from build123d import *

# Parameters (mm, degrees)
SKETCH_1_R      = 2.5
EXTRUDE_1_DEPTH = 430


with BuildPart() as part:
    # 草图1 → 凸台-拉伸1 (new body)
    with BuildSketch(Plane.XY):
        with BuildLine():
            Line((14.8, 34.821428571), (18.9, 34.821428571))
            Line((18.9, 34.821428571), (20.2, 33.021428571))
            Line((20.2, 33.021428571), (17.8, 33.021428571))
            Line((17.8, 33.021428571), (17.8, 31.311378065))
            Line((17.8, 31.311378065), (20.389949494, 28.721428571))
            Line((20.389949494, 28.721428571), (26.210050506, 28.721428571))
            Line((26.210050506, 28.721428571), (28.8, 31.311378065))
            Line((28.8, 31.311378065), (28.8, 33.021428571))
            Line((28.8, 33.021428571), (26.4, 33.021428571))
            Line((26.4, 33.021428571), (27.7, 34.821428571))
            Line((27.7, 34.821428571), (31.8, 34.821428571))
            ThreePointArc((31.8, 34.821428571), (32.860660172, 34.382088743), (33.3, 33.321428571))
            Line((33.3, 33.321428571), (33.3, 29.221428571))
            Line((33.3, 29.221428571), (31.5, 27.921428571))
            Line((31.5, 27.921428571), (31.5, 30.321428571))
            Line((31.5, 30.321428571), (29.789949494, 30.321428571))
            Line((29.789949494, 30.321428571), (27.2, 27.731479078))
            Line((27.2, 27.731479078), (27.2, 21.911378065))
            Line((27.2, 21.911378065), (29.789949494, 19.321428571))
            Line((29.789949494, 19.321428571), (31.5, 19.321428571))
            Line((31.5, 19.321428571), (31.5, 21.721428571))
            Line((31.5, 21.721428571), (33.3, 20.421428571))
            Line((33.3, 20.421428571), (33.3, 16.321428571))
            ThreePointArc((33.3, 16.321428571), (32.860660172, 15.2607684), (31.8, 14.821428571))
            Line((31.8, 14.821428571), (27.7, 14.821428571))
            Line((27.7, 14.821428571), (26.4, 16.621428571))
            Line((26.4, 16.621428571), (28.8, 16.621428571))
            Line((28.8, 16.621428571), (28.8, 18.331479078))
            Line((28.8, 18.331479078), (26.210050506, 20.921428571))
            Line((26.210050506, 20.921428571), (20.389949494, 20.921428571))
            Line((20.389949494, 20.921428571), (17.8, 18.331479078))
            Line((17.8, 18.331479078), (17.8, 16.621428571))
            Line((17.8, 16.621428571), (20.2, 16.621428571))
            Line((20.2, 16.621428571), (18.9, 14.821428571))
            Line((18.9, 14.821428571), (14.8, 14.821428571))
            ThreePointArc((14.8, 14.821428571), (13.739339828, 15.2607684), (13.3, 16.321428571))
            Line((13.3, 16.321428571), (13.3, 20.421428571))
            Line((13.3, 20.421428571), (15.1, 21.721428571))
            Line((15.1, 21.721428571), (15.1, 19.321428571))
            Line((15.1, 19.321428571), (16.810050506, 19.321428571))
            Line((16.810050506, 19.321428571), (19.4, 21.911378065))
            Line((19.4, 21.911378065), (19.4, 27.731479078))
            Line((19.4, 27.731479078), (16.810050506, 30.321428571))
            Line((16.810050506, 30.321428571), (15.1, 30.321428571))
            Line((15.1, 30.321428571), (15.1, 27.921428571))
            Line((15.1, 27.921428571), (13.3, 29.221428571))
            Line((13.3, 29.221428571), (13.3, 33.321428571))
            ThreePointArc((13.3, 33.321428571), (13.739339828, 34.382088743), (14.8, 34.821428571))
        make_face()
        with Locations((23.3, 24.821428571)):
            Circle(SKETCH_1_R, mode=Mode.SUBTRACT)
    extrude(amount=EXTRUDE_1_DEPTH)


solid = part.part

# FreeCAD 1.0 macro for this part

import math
import FreeCAD as App
import Part
import Sketcher

V = App.Vector

doc = App.newDocument("Part")
body = doc.addObject("PartDesign::Body", "Body")

sketch1 = body.newObject("Sketcher::SketchObject", "Sketch")
sketch1.AttachmentSupport = (doc.getObject("XY_Plane"), [""])
sketch1.MapMode = "FlatFace"
sketch1.addGeometry(Part.LineSegment(V(18.9, 34.821429, 0), V(14.8, 34.821429, 0)), False)
sketch1.addGeometry(Part.ArcOfCircle(Part.Circle(V(14.8, 33.321429, 0), V(0, 0, 1), 1.5), math.radians(90), math.radians(180)), False)
sketch1.addGeometry(Part.LineSegment(V(13.3, 33.321429, 0), V(13.3, 29.221429, 0)), False)
sketch1.addGeometry(Part.LineSegment(V(13.3, 29.221429, 0), V(15.1, 27.921429, 0)), False)
sketch1.addGeometry(Part.LineSegment(V(15.1, 27.921429, 0), V(15.1, 30.321429, 0)), False)
sketch1.addGeometry(Part.LineSegment(V(15.1, 30.321429, 0), V(16.810051, 30.321429, 0)), False)
sketch1.addGeometry(Part.LineSegment(V(16.810051, 30.321429, 0), V(19.4, 27.731479, 0)), False)
sketch1.addGeometry(Part.LineSegment(V(19.4, 27.731479, 0), V(19.4, 21.911378, 0)), False)
sketch1.addGeometry(Part.LineSegment(V(19.4, 21.911378, 0), V(16.810051, 19.321429, 0)), False)
sketch1.addGeometry(Part.LineSegment(V(16.810051, 19.321429, 0), V(15.1, 19.321429, 0)), False)
sketch1.addGeometry(Part.LineSegment(V(15.1, 19.321429, 0), V(15.1, 21.721429, 0)), False)
sketch1.addGeometry(Part.LineSegment(V(15.1, 21.721429, 0), V(13.3, 20.421429, 0)), False)
sketch1.addGeometry(Part.LineSegment(V(13.3, 20.421429, 0), V(13.3, 16.321429, 0)), False)
sketch1.addGeometry(Part.ArcOfCircle(Part.Circle(V(14.8, 16.321429, 0), V(0, 0, 1), 1.5), math.radians(-180), math.radians(-90)), False)
sketch1.addGeometry(Part.LineSegment(V(14.8, 14.821429, 0), V(18.9, 14.821429, 0)), False)
sketch1.addGeometry(Part.LineSegment(V(18.9, 14.821429, 0), V(20.2, 16.621429, 0)), False)
sketch1.addGeometry(Part.LineSegment(V(20.2, 16.621429, 0), V(17.8, 16.621429, 0)), False)
sketch1.addGeometry(Part.LineSegment(V(17.8, 16.621429, 0), V(17.8, 18.331479, 0)), False)
sketch1.addGeometry(Part.LineSegment(V(17.8, 18.331479, 0), V(20.389949, 20.921429, 0)), False)
sketch1.addGeometry(Part.LineSegment(V(20.389949, 20.921429, 0), V(26.210051, 20.921429, 0)), False)
sketch1.addGeometry(Part.LineSegment(V(26.210051, 20.921429, 0), V(28.8, 18.331479, 0)), False)
sketch1.addGeometry(Part.LineSegment(V(28.8, 18.331479, 0), V(28.8, 16.621429, 0)), False)
sketch1.addGeometry(Part.LineSegment(V(28.8, 16.621429, 0), V(26.4, 16.621429, 0)), False)
sketch1.addGeometry(Part.LineSegment(V(26.4, 16.621429, 0), V(27.7, 14.821429, 0)), False)
sketch1.addGeometry(Part.LineSegment(V(27.7, 14.821429, 0), V(31.8, 14.821429, 0)), False)
sketch1.addGeometry(Part.ArcOfCircle(Part.Circle(V(31.8, 16.321429, 0), V(0, 0, 1), 1.5), math.radians(-90), math.radians(0)), False)
sketch1.addGeometry(Part.LineSegment(V(33.3, 16.321429, 0), V(33.3, 20.421429, 0)), False)
sketch1.addGeometry(Part.LineSegment(V(33.3, 20.421429, 0), V(31.5, 21.721429, 0)), False)
sketch1.addGeometry(Part.LineSegment(V(31.5, 21.721429, 0), V(31.5, 19.321429, 0)), False)
sketch1.addGeometry(Part.LineSegment(V(31.5, 19.321429, 0), V(29.789949, 19.321429, 0)), False)
sketch1.addGeometry(Part.LineSegment(V(29.789949, 19.321429, 0), V(27.2, 21.911378, 0)), False)
sketch1.addGeometry(Part.LineSegment(V(27.2, 21.911378, 0), V(27.2, 27.731479, 0)), False)
sketch1.addGeometry(Part.LineSegment(V(27.2, 27.731479, 0), V(29.789949, 30.321429, 0)), False)
sketch1.addGeometry(Part.LineSegment(V(29.789949, 30.321429, 0), V(31.5, 30.321429, 0)), False)
sketch1.addGeometry(Part.LineSegment(V(31.5, 30.321429, 0), V(31.5, 27.921429, 0)), False)
sketch1.addGeometry(Part.LineSegment(V(31.5, 27.921429, 0), V(33.3, 29.221429, 0)), False)
sketch1.addGeometry(Part.LineSegment(V(33.3, 29.221429, 0), V(33.3, 33.321429, 0)), False)
sketch1.addGeometry(Part.ArcOfCircle(Part.Circle(V(31.8, 33.321429, 0), V(0, 0, 1), 1.5), math.radians(0), math.radians(90)), False)
sketch1.addGeometry(Part.LineSegment(V(31.8, 34.821429, 0), V(27.7, 34.821429, 0)), False)
sketch1.addGeometry(Part.LineSegment(V(27.7, 34.821429, 0), V(26.4, 33.021429, 0)), False)
sketch1.addGeometry(Part.LineSegment(V(26.4, 33.021429, 0), V(28.8, 33.021429, 0)), False)
sketch1.addGeometry(Part.LineSegment(V(28.8, 33.021429, 0), V(28.8, 31.311378, 0)), False)
sketch1.addGeometry(Part.LineSegment(V(28.8, 31.311378, 0), V(26.210051, 28.721429, 0)), False)
sketch1.addGeometry(Part.LineSegment(V(26.210051, 28.721429, 0), V(20.389949, 28.721429, 0)), False)
sketch1.addGeometry(Part.LineSegment(V(20.389949, 28.721429, 0), V(17.8, 31.311378, 0)), False)
sketch1.addGeometry(Part.LineSegment(V(17.8, 31.311378, 0), V(17.8, 33.021429, 0)), False)
sketch1.addGeometry(Part.LineSegment(V(17.8, 33.021429, 0), V(20.2, 33.021429, 0)), False)
sketch1.addGeometry(Part.LineSegment(V(20.2, 33.021429, 0), V(18.9, 34.821429, 0)), False)
sketch1.addGeometry(Part.Circle(V(23.3, 24.821429, 0), V(0, 0, 1), 2.5), False)
sketch1.addConstraint(Sketcher.Constraint("Tangent", 0, 2, 1, 1))
sketch1.addConstraint(Sketcher.Constraint("Tangent", 1, 2, 2, 1))
sketch1.addConstraint(Sketcher.Constraint("Coincident", 2, 2, 3, 1))
sketch1.addConstraint(Sketcher.Constraint("Coincident", 3, 2, 4, 1))
sketch1.addConstraint(Sketcher.Constraint("Coincident", 4, 2, 5, 1))
sketch1.addConstraint(Sketcher.Constraint("Coincident", 5, 2, 6, 1))
sketch1.addConstraint(Sketcher.Constraint("Coincident", 6, 2, 7, 1))
sketch1.addConstraint(Sketcher.Constraint("Coincident", 7, 2, 8, 1))
sketch1.addConstraint(Sketcher.Constraint("Coincident", 8, 2, 9, 1))
sketch1.addConstraint(Sketcher.Constraint("Coincident", 9, 2, 10, 1))
sketch1.addConstraint(Sketcher.Constraint("Coincident", 10, 2, 11, 1))
sketch1.addConstraint(Sketcher.Constraint("Coincident", 11, 2, 12, 1))
sketch1.addConstraint(Sketcher.Constraint("Tangent", 12, 2, 13, 1))
sketch1.addConstraint(Sketcher.Constraint("Tangent", 13, 2, 14, 1))
sketch1.addConstraint(Sketcher.Constraint("Coincident", 14, 2, 15, 1))
sketch1.addConstraint(Sketcher.Constraint("Coincident", 15, 2, 16, 1))
sketch1.addConstraint(Sketcher.Constraint("Coincident", 16, 2, 17, 1))
sketch1.addConstraint(Sketcher.Constraint("Coincident", 17, 2, 18, 1))
sketch1.addConstraint(Sketcher.Constraint("Coincident", 18, 2, 19, 1))
sketch1.addConstraint(Sketcher.Constraint("Coincident", 19, 2, 20, 1))
sketch1.addConstraint(Sketcher.Constraint("Coincident", 20, 2, 21, 1))
sketch1.addConstraint(Sketcher.Constraint("Coincident", 21, 2, 22, 1))
sketch1.addConstraint(Sketcher.Constraint("Coincident", 22, 2, 23, 1))
sketch1.addConstraint(Sketcher.Constraint("Coincident", 23, 2, 24, 1))
sketch1.addConstraint(Sketcher.Constraint("Tangent", 24, 2, 25, 1))
sketch1.addConstraint(Sketcher.Constraint("Tangent", 25, 2, 26, 1))
sketch1.addConstraint(Sketcher.Constraint("Coincident", 26, 2, 27, 1))
sketch1.addConstraint(Sketcher.Constraint("Coincident", 27, 2, 28, 1))
sketch1.addConstraint(Sketcher.Constraint("Coincident", 28, 2, 29, 1))
sketch1.addConstraint(Sketcher.Constraint("Coincident", 29, 2, 30, 1))
sketch1.addConstraint(Sketcher.Constraint("Coincident", 30, 2, 31, 1))
sketch1.addConstraint(Sketcher.Constraint("Coincident", 31, 2, 32, 1))
sketch1.addConstraint(Sketcher.Constraint("Coincident", 32, 2, 33, 1))
sketch1.addConstraint(Sketcher.Constraint("Coincident", 33, 2, 34, 1))
sketch1.addConstraint(Sketcher.Constraint("Coincident", 34, 2, 35, 1))
sketch1.addConstraint(Sketcher.Constraint("Coincident", 35, 2, 36, 1))
sketch1.addConstraint(Sketcher.Constraint("Tangent", 36, 2, 37, 1))
sketch1.addConstraint(Sketcher.Constraint("Tangent", 37, 2, 38, 1))
sketch1.addConstraint(Sketcher.Constraint("Coincident", 38, 2, 39, 1))
sketch1.addConstraint(Sketcher.Constraint("Coincident", 39, 2, 40, 1))
sketch1.addConstraint(Sketcher.Constraint("Coincident", 40, 2, 41, 1))
sketch1.addConstraint(Sketcher.Constraint("Coincident", 41, 2, 42, 1))
sketch1.addConstraint(Sketcher.Constraint("Coincident", 42, 2, 43, 1))
sketch1.addConstraint(Sketcher.Constraint("Coincident", 43, 2, 44, 1))
sketch1.addConstraint(Sketcher.Constraint("Coincident", 44, 2, 45, 1))
sketch1.addConstraint(Sketcher.Constraint("Coincident", 45, 2, 46, 1))
sketch1.addConstraint(Sketcher.Constraint("Coincident", 46, 2, 47, 1))
sketch1.addConstraint(Sketcher.Constraint("Coincident", 47, 2, 0, 1))
sketch1.addConstraint(Sketcher.Constraint("Horizontal", 0))
sketch1.addConstraint(Sketcher.Constraint("Vertical", 2))
sketch1.addConstraint(Sketcher.Constraint("Vertical", 4))
sketch1.addConstraint(Sketcher.Constraint("Horizontal", 5))
sketch1.addConstraint(Sketcher.Constraint("Vertical", 7))
sketch1.addConstraint(Sketcher.Constraint("Horizontal", 9))
sketch1.addConstraint(Sketcher.Constraint("Vertical", 10))
sketch1.addConstraint(Sketcher.Constraint("Vertical", 12))
sketch1.addConstraint(Sketcher.Constraint("Horizontal", 14))
sketch1.addConstraint(Sketcher.Constraint("Horizontal", 16))
sketch1.addConstraint(Sketcher.Constraint("Vertical", 17))
sketch1.addConstraint(Sketcher.Constraint("Horizontal", 19))
sketch1.addConstraint(Sketcher.Constraint("Vertical", 21))
sketch1.addConstraint(Sketcher.Constraint("Horizontal", 22))
sketch1.addConstraint(Sketcher.Constraint("Horizontal", 24))
sketch1.addConstraint(Sketcher.Constraint("Vertical", 26))
sketch1.addConstraint(Sketcher.Constraint("Vertical", 28))
sketch1.addConstraint(Sketcher.Constraint("Horizontal", 29))
sketch1.addConstraint(Sketcher.Constraint("Vertical", 31))
sketch1.addConstraint(Sketcher.Constraint("Horizontal", 33))
sketch1.addConstraint(Sketcher.Constraint("Vertical", 34))
sketch1.addConstraint(Sketcher.Constraint("Vertical", 36))
sketch1.addConstraint(Sketcher.Constraint("Horizontal", 38))
sketch1.addConstraint(Sketcher.Constraint("Horizontal", 40))
sketch1.addConstraint(Sketcher.Constraint("Vertical", 41))
sketch1.addConstraint(Sketcher.Constraint("Horizontal", 43))
sketch1.addConstraint(Sketcher.Constraint("Vertical", 45))
sketch1.addConstraint(Sketcher.Constraint("Horizontal", 46))
sketch1.addConstraint(Sketcher.Constraint("Equal", 1, 13))
sketch1.addConstraint(Sketcher.Constraint("Equal", 13, 25))
sketch1.addConstraint(Sketcher.Constraint("Equal", 25, 37))
sketch1.addConstraint(Sketcher.Constraint("Perpendicular", 6, 8))
sketch1.addConstraint(Sketcher.Constraint("Perpendicular", 3, 15))
sketch1.addConstraint(Sketcher.Constraint("Parallel", 8, 18))
sketch1.addConstraint(Sketcher.Constraint("Perpendicular", 18, 20))
sketch1.addConstraint(Sketcher.Constraint("Perpendicular", 11, 23))
sketch1.addConstraint(Sketcher.Constraint("Perpendicular", 15, 27))
sketch1.addConstraint(Sketcher.Constraint("Parallel", 20, 30))
sketch1.addConstraint(Sketcher.Constraint("Perpendicular", 30, 32))
sketch1.addConstraint(Sketcher.Constraint("Perpendicular", 23, 35))
sketch1.addConstraint(Sketcher.Constraint("Perpendicular", 27, 39))
sketch1.addConstraint(Sketcher.Constraint("Parallel", 32, 42))
sketch1.addConstraint(Sketcher.Constraint("Perpendicular", 42, 44))
sketch1.addConstraint(Sketcher.Constraint("Perpendicular", 35, 47))
sketch1.addConstraint(Sketcher.Constraint("Horizontal", 13, 3, 25, 3))
sketch1.addConstraint(Sketcher.Constraint("Horizontal", 1, 3, 37, 3))
sketch1.addConstraint(Sketcher.Constraint("Horizontal", 17, 2, 20, 2))
sketch1.addConstraint(Sketcher.Constraint("Horizontal", 16, 2, 21, 2))
sketch1.addConstraint(Sketcher.Constraint("Horizontal", 11, 2, 26, 2))
sketch1.addConstraint(Sketcher.Constraint("Horizontal", 10, 2, 27, 2))
sketch1.addConstraint(Sketcher.Constraint("Horizontal", 9, 2, 28, 2))
sketch1.addConstraint(Sketcher.Constraint("Horizontal", 7, 2, 30, 2))
sketch1.addConstraint(Sketcher.Constraint("Horizontal", 6, 2, 31, 2))
sketch1.addConstraint(Sketcher.Constraint("Horizontal", 5, 2, 32, 2))
sketch1.addConstraint(Sketcher.Constraint("Horizontal", 3, 2, 34, 2))
sketch1.addConstraint(Sketcher.Constraint("Horizontal", 2, 2, 35, 2))
sketch1.addConstraint(Sketcher.Constraint("Horizontal", 41, 2, 44, 2))
sketch1.addConstraint(Sketcher.Constraint("Horizontal", 40, 2, 45, 2))
sketch1.addConstraint(Sketcher.Constraint("Vertical", 1, 3, 13, 3))
sketch1.addConstraint(Sketcher.Constraint("Vertical", 25, 3, 37, 3))
sketch1.addConstraint(Sketcher.Constraint("Vertical", 5, 2, 8, 2))
sketch1.addConstraint(Sketcher.Constraint("Vertical", 4, 2, 9, 2))
sketch1.addConstraint(Sketcher.Constraint("Vertical", 29, 2, 32, 2))
sketch1.addConstraint(Sketcher.Constraint("Vertical", 28, 2, 33, 2))
sketch1.addConstraint(Sketcher.Constraint("Vertical", 23, 2, 38, 2))
sketch1.addConstraint(Sketcher.Constraint("Vertical", 22, 2, 39, 2))
sketch1.addConstraint(Sketcher.Constraint("Vertical", 21, 2, 40, 2))
sketch1.addConstraint(Sketcher.Constraint("Vertical", 19, 2, 42, 2))
sketch1.addConstraint(Sketcher.Constraint("Vertical", 18, 2, 43, 2))
sketch1.addConstraint(Sketcher.Constraint("Vertical", 15, 2, 46, 2))
sketch1.addConstraint(Sketcher.Constraint("Equal", 16, 22))
sketch1.addConstraint(Sketcher.Constraint("Equal", 14, 24))
sketch1.addConstraint(Sketcher.Constraint("Equal", 9, 29))
sketch1.addConstraint(Sketcher.Constraint("Equal", 38, 2))
sketch1.addConstraint(Sketcher.Constraint("Equal", 46, 4))
sketch1.addConstraint(Sketcher.Constraint("Equal", 43, 7))
sketch1.addConstraint(Sketcher.Constraint("Equal", 4, 10))
sketch1.addConstraint(Sketcher.Constraint("Equal", 2, 12))
sketch1.addConstraint(Sketcher.Constraint("Equal", 33, 17))
sketch1.addConstraint(Sketcher.Constraint("Equal", 21, 41))
sketch1.addConstraint(Sketcher.Constraint("Equal", 11, 15))
sketch1.addConstraint(Sketcher.Constraint("Equal", 8, 18))
sketch1.addConstraint(Sketcher.Constraint("Diameter", 48, 5.0))
sketch1.addConstraint(Sketcher.Constraint("Radius", 1, 1.5))
sketch1.addConstraint(Sketcher.Constraint("DistanceX", 0, 2, 0, 1, 4.1))
sketch1.addConstraint(Sketcher.Constraint("DistanceX", 16, 2, 16, 1, 2.4))
sketch1.addConstraint(Sketcher.Constraint("DistanceY", 13, 3, 1, 3, 17.0))
sketch1.addConstraint(Sketcher.Constraint("DistanceY", 48, 3, 0, 2, 10.0))
sketch1.addConstraint(Sketcher.Constraint("DistanceX", 1, 2, 48, 3, 10.0))
sketch1.addConstraint(Sketcher.Constraint("DistanceY", 4, 2, 1, 3, 3.0))
sketch1.addConstraint(Sketcher.Constraint("DistanceX", -1, 1, 1, 3, 14.8))
sketch1.addConstraint(Sketcher.Constraint("DistanceX", -1, 1, 3, 2, 15.1))
sketch1.addConstraint(Sketcher.Constraint("DistanceX", -1, 1, 6, 2, 19.4))
sketch1.addConstraint(Sketcher.Constraint("DistanceX", 19, 1, 19, 2, 5.820101))
sketch1.addConstraint(Sketcher.Constraint("DistanceY", -1, 1, 1, 3, 33.321429))
pad1 = body.newObject("PartDesign::Pad", "Pad")
pad1.Profile = sketch1
pad1.Length = 430

doc.recompute()
